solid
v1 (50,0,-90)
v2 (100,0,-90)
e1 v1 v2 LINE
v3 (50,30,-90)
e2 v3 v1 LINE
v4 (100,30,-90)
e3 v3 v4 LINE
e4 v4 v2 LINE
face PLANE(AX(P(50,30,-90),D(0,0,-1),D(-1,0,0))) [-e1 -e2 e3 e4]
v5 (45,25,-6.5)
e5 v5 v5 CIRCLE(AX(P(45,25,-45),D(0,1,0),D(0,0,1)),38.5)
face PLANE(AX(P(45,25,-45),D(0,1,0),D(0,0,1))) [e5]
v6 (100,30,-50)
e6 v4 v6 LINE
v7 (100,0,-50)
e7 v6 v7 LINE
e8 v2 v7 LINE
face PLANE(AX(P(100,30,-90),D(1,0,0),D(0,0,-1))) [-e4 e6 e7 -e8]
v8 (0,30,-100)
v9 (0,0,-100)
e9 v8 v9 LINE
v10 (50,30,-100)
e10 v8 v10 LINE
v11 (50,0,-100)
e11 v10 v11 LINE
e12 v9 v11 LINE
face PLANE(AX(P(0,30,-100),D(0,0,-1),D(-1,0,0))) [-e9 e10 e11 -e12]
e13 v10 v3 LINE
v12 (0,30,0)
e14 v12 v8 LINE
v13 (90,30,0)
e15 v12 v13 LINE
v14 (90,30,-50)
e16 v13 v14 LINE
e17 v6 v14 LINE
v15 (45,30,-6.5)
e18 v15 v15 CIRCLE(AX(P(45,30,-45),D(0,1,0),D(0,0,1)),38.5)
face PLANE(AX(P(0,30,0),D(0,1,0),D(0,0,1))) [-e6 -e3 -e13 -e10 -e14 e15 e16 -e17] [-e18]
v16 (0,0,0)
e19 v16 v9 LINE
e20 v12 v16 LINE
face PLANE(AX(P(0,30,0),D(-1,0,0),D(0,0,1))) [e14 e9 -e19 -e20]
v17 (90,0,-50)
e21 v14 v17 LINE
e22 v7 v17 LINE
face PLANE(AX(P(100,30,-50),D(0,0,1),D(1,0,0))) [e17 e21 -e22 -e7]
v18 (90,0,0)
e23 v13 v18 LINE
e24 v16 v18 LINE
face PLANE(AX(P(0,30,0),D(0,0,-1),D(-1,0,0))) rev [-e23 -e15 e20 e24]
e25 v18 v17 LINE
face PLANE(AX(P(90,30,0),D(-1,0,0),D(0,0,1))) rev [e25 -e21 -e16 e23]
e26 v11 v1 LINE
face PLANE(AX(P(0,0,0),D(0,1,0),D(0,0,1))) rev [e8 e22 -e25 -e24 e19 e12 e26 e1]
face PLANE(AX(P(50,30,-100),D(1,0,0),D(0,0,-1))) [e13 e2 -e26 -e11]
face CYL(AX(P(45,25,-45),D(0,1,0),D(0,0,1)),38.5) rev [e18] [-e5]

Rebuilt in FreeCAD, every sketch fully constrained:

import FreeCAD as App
import Part
import Sketcher

V = App.Vector
Q = App.Units.Quantity


def add_polygon(sketch, points):
    """Adds a closed chain of lines whose ends are joined by coincident constraints."""
    first, n = sketch.GeometryCount, len(points)
    for a, b in zip(points, points[1:] + points[:1]):
        sketch.addGeometry(Part.LineSegment(App.Vector(*a, 0), App.Vector(*b, 0)), False)
    for i in range(n):
        sketch.addConstraint(Sketcher.Constraint("Coincident", first + i, 2, first + (i + 1) % n, 1))

doc = App.newDocument("Part")
body = doc.addObject("PartDesign::Body", "Body")

sketch1 = doc.addObject("Sketcher::SketchObject", "Sketch")
body.addObject(sketch1)
sketch1.AttachmentSupport = (doc.XZ_Plane, [""])
sketch1.MapMode = "FlatFace"
add_polygon(sketch1, [(50, -90), (50, -100), (0, -100), (0, 0), (90, 0), (90, -50), (100, -50), (100, -90)])
sketch1.addConstraint([
    Sketcher.Constraint("Vertical", 0),
    Sketcher.Constraint("Horizontal", 1),
    Sketcher.Constraint("Vertical", 2),
    Sketcher.Constraint("Horizontal", 3),
    Sketcher.Constraint("Vertical", 4),
    Sketcher.Constraint("Horizontal", 5),
    Sketcher.Constraint("Vertical", 6),
    Sketcher.Constraint("Horizontal", 7),
    Sketcher.Constraint("Coincident", 2, 2, -1, 1),
    Sketcher.Constraint("Equal", 1, 7),
    Sketcher.Constraint("Equal", 5, 0),
    Sketcher.Constraint("Equal", 7, 4),
    Sketcher.Constraint("DistanceX", 1, 2, 1, 1, Q("50 mm")),
    Sketcher.Constraint("DistanceX", 3, 1, 3, 2, Q("90 mm")),
    Sketcher.Constraint("DistanceY", 2, 1, 2, 2, Q("100 mm")),
])
pad1 = doc.addObject("PartDesign::Pad", "Pad")
body.addObject(pad1)
pad1.Profile = sketch1
pad1.Length = 30
pad1.Reversed = True

sketch2 = doc.addObject("Sketcher::SketchObject", "Sketch001")
body.addObject(sketch2)
sketch2.AttachmentSupport = (doc.XZ_Plane, [""])
sketch2.MapMode = "FlatFace"
sketch2.AttachmentOffset = App.Placement(V(0, 0, -30), App.Rotation())
sketch2.addGeometry(Part.Circle(V(45, -45, 0), V(0, 0, 1), 38), False)
sketch2.addConstraint([
    Sketcher.Constraint("Diameter", 0, Q("77 mm")),
    Sketcher.Constraint("DistanceX", -1, 1, 0, 3, Q("45 mm")),
    Sketcher.Constraint("DistanceY", 0, 3, -1, 1, Q("45 mm")),
])
pocket1 = doc.addObject("PartDesign::Pocket", "Pocket")
body.addObject(pocket1)
pocket1.Profile = sketch2
pocket1.Length = 5
pocket1.Reversed = True

doc.recompute()
